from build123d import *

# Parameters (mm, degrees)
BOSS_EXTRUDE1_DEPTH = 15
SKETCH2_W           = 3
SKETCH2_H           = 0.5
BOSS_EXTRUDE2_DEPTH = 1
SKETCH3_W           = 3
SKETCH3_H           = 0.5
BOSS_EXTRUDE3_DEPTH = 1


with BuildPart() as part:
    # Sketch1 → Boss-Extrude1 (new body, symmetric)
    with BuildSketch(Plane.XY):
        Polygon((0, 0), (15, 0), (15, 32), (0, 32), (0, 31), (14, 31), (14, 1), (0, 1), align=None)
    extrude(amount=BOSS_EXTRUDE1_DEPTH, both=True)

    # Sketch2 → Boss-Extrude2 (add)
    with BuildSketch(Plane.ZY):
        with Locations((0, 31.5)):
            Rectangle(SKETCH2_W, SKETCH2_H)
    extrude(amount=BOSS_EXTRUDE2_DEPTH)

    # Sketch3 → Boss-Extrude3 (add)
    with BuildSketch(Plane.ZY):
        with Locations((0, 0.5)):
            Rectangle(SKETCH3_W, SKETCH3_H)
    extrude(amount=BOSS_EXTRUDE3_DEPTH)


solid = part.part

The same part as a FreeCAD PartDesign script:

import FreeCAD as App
import Part
import Sketcher


def add_polygon(sketch, points):
    """Adds a closed chain of lines whose ends are joined by coincident constraints."""
    first, n = sketch.GeometryCount, len(points)
    for a, b in zip(points, points[1:] + points[:1]):
        sketch.addGeometry(Part.LineSegment(App.Vector(*a, 0), App.Vector(*b, 0)), False)
    for i in range(n):
        sketch.addConstraint(Sketcher.Constraint("Coincident", first + i, 2, first + (i + 1) % n, 1))

doc = App.newDocument("Part")
body = doc.addObject("PartDesign::Body", "Body")

# Sketch on XY plane
sketch1 = doc.addObject("Sketcher::SketchObject", "Sketch")
body.addObject(sketch1)
sketch1.AttachmentSupport = (doc.XY_Plane, [""])
sketch1.MapMode = "FlatFace"
add_polygon(sketch1, [(0, 0), (15, 0), (15, 32), (0, 32), (0, 31), (14, 31), (14, 1), (0, 1)])  # lines 0-7
sketch1.addConstraint([
    Sketcher.Constraint("Horizontal", 0),
    Sketcher.Constraint("Vertical", 1),
    Sketcher.Constraint("Horizontal", 2),
    Sketcher.Constraint("Vertical", 3),
    Sketcher.Constraint("Horizontal", 4),
    Sketcher.Constraint("Vertical", 5),
    Sketcher.Constraint("Horizontal", 6),
    Sketcher.Constraint("Vertical", 7),
    Sketcher.Constraint("Coincident", 7, 2, -1, 1),
    Sketcher.Constraint("PointOnObject", 2, 2, -2),
    Sketcher.Constraint("Equal", 3, 7),
    Sketcher.Constraint("DistanceX", 0, 1, 0, 2, 15.0),
    Sketcher.Constraint("DistanceX", 4, 1, 4, 2, 14.0),
    Sketcher.Constraint("DistanceY", 1, 1, 1, 2, 32.0),
    Sketcher.Constraint("DistanceY", 3, 2, 3, 1, 1.0),
])
pad1 = doc.addObject("PartDesign::Pad", "Pad")
body.addObject(pad1)
pad1.Profile = sketch1
pad1.Length = 30
pad1.Midplane = True

# Sketch on YZ plane
sketch2 = doc.addObject("Sketcher::SketchObject", "Sketch001")
body.addObject(sketch2)
sketch2.AttachmentSupport = (doc.YZ_Plane, [""])
sketch2.MapMode = "FlatFace"
add_polygon(sketch2, [(31.8, -1.5), (31.2, -1.5), (31.2, 1.5), (31.8, 1.5)])  # lines 0-3
sketch2.addConstraint([
    Sketcher.Constraint("Horizontal", 0),
    Sketcher.Constraint("Vertical", 1),
    Sketcher.Constraint("Horizontal", 2),
    Sketcher.Constraint("Vertical", 3),
    Sketcher.Constraint("DistanceY", 1, 1, 1, 2, 3.0),
    Sketcher.Constraint("DistanceX", 0, 2, 0, 1, 0.5),
    Sketcher.Constraint("DistanceY", 0, 2, -1, 1, 1.5),
    Sketcher.Constraint("DistanceX", -1, 1, 0, 2, 31.25),
])
pad2 = doc.addObject("PartDesign::Pad", "Pad001")
body.addObject(pad2)
pad2.Profile = sketch2
pad2.Length = 1
pad2.Reversed = True

# Sketch on YZ plane
sketch3 = doc.addObject("Sketcher::SketchObject", "Sketch002")
body.addObject(sketch3)
sketch3.AttachmentSupport = (doc.YZ_Plane, [""])
sketch3.MapMode = "FlatFace"
add_polygon(sketch3, [(0.8, -1.5), (0.2, -1.5), (0.2, 1.5), (0.8, 1.5)])  # lines 0-3
sketch3.addConstraint([
    Sketcher.Constraint("Horizontal", 0),
    Sketcher.Constraint("Vertical", 1),
    Sketcher.Constraint("Horizontal", 2),
    Sketcher.Constraint("Vertical", 3),
    Sketcher.Constraint("DistanceY", 1, 1, 1, 2, 3.0),
    Sketcher.Constraint("DistanceX", 0, 2, 0, 1, 0.5),
    Sketcher.Constraint("DistanceY", 0, 2, -1, 1, 1.5),
    Sketcher.Constraint("DistanceX", -1, 1, 0, 2, 0.25),
])
pad3 = doc.addObject("PartDesign::Pad", "Pad002")
body.addObject(pad3)
pad3.Profile = sketch3
pad3.Length = 1
pad3.Reversed = True

doc.recompute()
